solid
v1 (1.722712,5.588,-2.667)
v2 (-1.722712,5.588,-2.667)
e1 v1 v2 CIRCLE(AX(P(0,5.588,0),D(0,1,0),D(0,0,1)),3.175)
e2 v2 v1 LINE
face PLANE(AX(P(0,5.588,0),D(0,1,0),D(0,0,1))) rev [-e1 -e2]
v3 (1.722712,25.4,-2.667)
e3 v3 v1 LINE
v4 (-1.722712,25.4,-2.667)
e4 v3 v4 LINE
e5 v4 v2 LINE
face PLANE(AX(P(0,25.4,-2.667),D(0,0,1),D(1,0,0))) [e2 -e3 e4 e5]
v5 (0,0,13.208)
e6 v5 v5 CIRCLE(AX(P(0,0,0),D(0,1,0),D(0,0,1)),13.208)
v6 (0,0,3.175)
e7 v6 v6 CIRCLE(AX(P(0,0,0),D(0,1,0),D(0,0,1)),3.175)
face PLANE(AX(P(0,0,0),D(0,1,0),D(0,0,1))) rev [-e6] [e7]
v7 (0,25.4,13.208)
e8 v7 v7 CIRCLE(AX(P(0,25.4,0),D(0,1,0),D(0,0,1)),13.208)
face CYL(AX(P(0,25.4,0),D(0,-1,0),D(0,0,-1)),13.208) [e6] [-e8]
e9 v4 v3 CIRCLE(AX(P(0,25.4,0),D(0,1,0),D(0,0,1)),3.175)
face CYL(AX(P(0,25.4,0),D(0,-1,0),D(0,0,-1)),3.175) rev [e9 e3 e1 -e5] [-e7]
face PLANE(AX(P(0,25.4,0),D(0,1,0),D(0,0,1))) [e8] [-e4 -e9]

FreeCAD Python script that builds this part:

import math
import FreeCAD as App
import Part
import Sketcher
from FreeCAD import Vector
Q = App.Units.Quantity

doc = App.newDocument("Part")
body = doc.addObject("PartDesign::Body", "Body")

sketch1 = body.newObject("Sketcher::SketchObject", "Sketch")
sketch1.AttachmentSupport = (doc.getObject("XZ_Plane"), [""])
sketch1.MapMode = "FlatFace"
sketch1.addGeometry(Part.Circle(Vector(0, 0, 0), Vector(0, 0, 1), 13), False)
sketch1.addConstraint([
    Sketcher.Constraint("Coincident", 0, 3, -1, 1),
    Sketcher.Constraint("Diameter", 0, Q("1.04 in")),
])
pad1 = body.newObject("PartDesign::Pad", "Pad")
pad1.Profile = sketch1
pad1.Length = Q("1 in")
pad1.Reversed = True

sketch2 = body.newObject("Sketcher::SketchObject", "Sketch001")
sketch2.AttachmentSupport = (doc.getObject("XZ_Plane"), [""])
sketch2.MapMode = "FlatFace"
sketch2.addGeometry([
    Part.LineSegment(Vector(1.7, -2.7, 0), Vector(-1.7, -2.7, 0)),
    Part.ArcOfCircle(Part.Circle(Vector(0, 0, 0), Vector(0, 0, 1), 3.2), math.radians(0), math.radians(237)),
    Part.ArcOfCircle(Part.Circle(Vector(0, 0, 0), Vector(0, 0, 1), 3.2), math.radians(-57), math.radians(0)),
], False)
sketch2.addConstraint([
    Sketcher.Constraint("Coincident", 0, 2, 1, 2),
    Sketcher.Constraint("Tangent", 1, 1, 2, 2),
    Sketcher.Constraint("Coincident", 2, 1, 0, 1),
    Sketcher.Constraint("Horizontal", 0),
    Sketcher.Constraint("Coincident", 1, 3, -1, 1),
    Sketcher.Constraint("Equal", 1, 2),
    Sketcher.Constraint("PointOnObject", 1, 1, -1),
    Sketcher.Constraint("Radius", 1, Q("0.125 in")),
    Sketcher.Constraint("DistanceY", 0, 2, -1, 1, Q("0.105 in")),
])
pocket1 = body.newObject("PartDesign::Pocket", "Pocket")
pocket1.Profile = sketch2
pocket1.Type = "ThroughAll"

sketch3 = body.newObject("Sketcher::SketchObject", "Sketch002")
sketch3.AttachmentSupport = (doc.getObject("XZ_Plane"), [""])
sketch3.MapMode = "FlatFace"
sketch3.addGeometry([
    Part.ArcOfCircle(Part.Circle(Vector(0, 0, 0), Vector(0, 0, 1), 3.2), math.radians(0), math.radians(237)),
    Part.ArcOfCircle(Part.Circle(Vector(0, 0, 0), Vector(0, 0, 1), 3.2), math.radians(-57), math.radians(0)),
    Part.ArcOfCircle(Part.Circle(Vector(0, 0, 0), Vector(0, 0, 1), 3.2), math.radians(-123), math.radians(-57)),
], False)
sketch3.addConstraint([
    Sketcher.Constraint("Tangent", 0, 1, 1, 2),
    Sketcher.Constraint("Tangent", 1, 1, 2, 2),
    Sketcher.Constraint("Tangent", 2, 1, 0, 2),
    Sketcher.Constraint("Coincident", 0, 3, -1, 1),
    Sketcher.Constraint("PointOnObject", 0, 1, -1),
    Sketcher.Constraint("Horizontal", 1, 1, 2, 1),
    Sketcher.Constraint("Radius", 0, Q("0.125 in")),
    Sketcher.Constraint("DistanceY", 1, 1, -1, 1, Q("0.105 in")),
])
pocket2 = body.newObject("PartDesign::Pocket", "Pocket001")
pocket2.Profile = sketch3
pocket2.Length = Q("0.22 in")

doc.recompute()
